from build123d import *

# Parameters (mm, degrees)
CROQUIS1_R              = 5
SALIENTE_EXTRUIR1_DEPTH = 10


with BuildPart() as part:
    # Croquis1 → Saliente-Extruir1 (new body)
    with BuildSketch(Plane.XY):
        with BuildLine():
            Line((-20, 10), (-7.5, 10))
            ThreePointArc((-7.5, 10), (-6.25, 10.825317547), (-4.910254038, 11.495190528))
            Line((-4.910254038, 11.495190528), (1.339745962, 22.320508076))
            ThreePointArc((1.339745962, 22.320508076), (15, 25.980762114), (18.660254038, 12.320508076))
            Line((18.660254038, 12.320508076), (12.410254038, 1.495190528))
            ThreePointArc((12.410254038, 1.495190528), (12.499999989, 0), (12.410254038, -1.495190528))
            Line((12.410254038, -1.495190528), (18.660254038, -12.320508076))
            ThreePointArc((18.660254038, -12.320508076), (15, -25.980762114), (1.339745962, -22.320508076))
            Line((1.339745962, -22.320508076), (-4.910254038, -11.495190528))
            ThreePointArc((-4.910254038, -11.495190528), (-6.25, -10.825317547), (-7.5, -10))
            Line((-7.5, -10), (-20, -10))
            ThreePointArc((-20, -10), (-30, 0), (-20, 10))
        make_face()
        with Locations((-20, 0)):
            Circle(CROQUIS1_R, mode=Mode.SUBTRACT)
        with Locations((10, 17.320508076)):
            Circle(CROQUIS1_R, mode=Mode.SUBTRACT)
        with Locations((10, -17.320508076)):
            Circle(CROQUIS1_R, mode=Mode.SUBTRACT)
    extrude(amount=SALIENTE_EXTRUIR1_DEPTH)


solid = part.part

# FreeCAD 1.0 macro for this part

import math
import FreeCAD as App
import Part
import Sketcher

V = App.Vector
Q = App.Units.Quantity

doc = App.newDocument("Part")
body = doc.addObject("PartDesign::Body", "Body")

# Sketch on XY plane
sketch1 = body.newObject("Sketcher::SketchObject", "Sketch")
sketch1.AttachmentSupport = (doc.getObject("XY_Plane"), [""])
sketch1.MapMode = "FlatFace"
sketch1.addGeometry(Part.LineSegment(V(-7.5, 10, 0), V(-20, 10, 0)), False)
sketch1.addGeometry(Part.ArcOfCircle(Part.Circle(V(-20, 0, 0), V(0, 0, 1), 10), math.radians(90), math.radians(270)), False)
sketch1.addGeometry(Part.LineSegment(V(-20, -10, 0), V(-7.5, -10, 0)), False)
sketch1.addGeometry(Part.ArcOfCircle(Part.Circle(V(0, 0, 0), V(0, 0, 1), 12.5), math.radians(-126.87), math.radians(-113.13)), False)
sketch1.addGeometry(Part.LineSegment(V(-4.9, -11.5, 0), V(1.3, -22.3, 0)), False)
sketch1.addGeometry(Part.ArcOfCircle(Part.Circle(V(10, -17.3, 0), V(0, 0, 1), 10), math.radians(-150), math.radians(30)), False)
sketch1.addGeometry(Part.LineSegment(V(18.7, -12.3, 0), V(12.4, -1.5, 0)), False)
sketch1.addGeometry(Part.ArcOfCircle(Part.Circle(V(0, 0, 0), V(0, 0, 1), 12.5), math.radians(-6.87), math.radians(6.87)), False)
sketch1.addGeometry(Part.LineSegment(V(12.4, 1.5, 0), V(18.7, 12.3, 0)), False)
sketch1.addGeometry(Part.ArcOfCircle(Part.Circle(V(10, 17.3, 0), V(0, 0, 1), 10), math.radians(-30), math.radians(150)), False)
sketch1.addGeometry(Part.LineSegment(V(1.3, 22.3, 0), V(-4.9, 11.5, 0)), False)
sketch1.addGeometry(Part.ArcOfCircle(Part.Circle(V(0, 0, 0), V(0, 0, 1), 12.5), math.radians(113.13), math.radians(126.87)), False)
sketch1.addGeometry(Part.Circle(V(10, -17.3, 0), V(0, 0, 1), 5), False)
sketch1.addGeometry(Part.Circle(V(-20, 0, 0), V(0, 0, 1), 5), False)
sketch1.addGeometry(Part.Circle(V(10, 17.3, 0), V(0, 0, 1), 5), False)
sketch1.addConstraint(Sketcher.Constraint("Tangent", 0, 2, 1, 1))
sketch1.addConstraint(Sketcher.Constraint("Tangent", 1, 2, 2, 1))
sketch1.addConstraint(Sketcher.Constraint("Coincident", 2, 2, 3, 1))
sketch1.addConstraint(Sketcher.Constraint("Coincident", 3, 2, 4, 1))
sketch1.addConstraint(Sketcher.Constraint("Tangent", 4, 2, 5, 1))
sketch1.addConstraint(Sketcher.Constraint("Tangent", 5, 2, 6, 1))
sketch1.addConstraint(Sketcher.Constraint("Coincident", 6, 2, 7, 1))
sketch1.addConstraint(Sketcher.Constraint("Coincident", 7, 2, 8, 1))
sketch1.addConstraint(Sketcher.Constraint("Tangent", 8, 2, 9, 1))
sketch1.addConstraint(Sketcher.Constraint("Tangent", 9, 2, 10, 1))
sketch1.addConstraint(Sketcher.Constraint("Coincident", 10, 2, 11, 1))
sketch1.addConstraint(Sketcher.Constraint("Coincident", 11, 2, 0, 1))
sketch1.addConstraint(Sketcher.Constraint("Horizontal", 0))
sketch1.addConstraint(Sketcher.Constraint("Horizontal", 2))
sketch1.addConstraint(Sketcher.Constraint("Coincident", 3, 3, -1, 1))
sketch1.addConstraint(Sketcher.Constraint("Coincident", 7, 3, -1, 1))
sketch1.addConstraint(Sketcher.Constraint("Coincident", 11, 3, -1, 1))
sketch1.addConstraint(Sketcher.Constraint("Coincident", 12, 3, 5, 3))
sketch1.addConstraint(Sketcher.Constraint("Coincident", 13, 3, 1, 3))
sketch1.addConstraint(Sketcher.Constraint("Coincident", 14, 3, 9, 3))
sketch1.addConstraint(Sketcher.Constraint("Equal", 1, 5))
sketch1.addConstraint(Sketcher.Constraint("Equal", 3, 7))
sketch1.addConstraint(Sketcher.Constraint("Equal", 5, 9))
sketch1.addConstraint(Sketcher.Constraint("Equal", 7, 11))
sketch1.addConstraint(Sketcher.Constraint("Equal", 12, 13))
sketch1.addConstraint(Sketcher.Constraint("Equal", 13, 14))
sketch1.addConstraint(Sketcher.Constraint("Symmetric", 5, 3, 9, 3, -1))
sketch1.addConstraint(Sketcher.Constraint("PointOnObject", 1, 3, -1))
sketch1.addConstraint(Sketcher.Constraint("Parallel", 4, 6))
sketch1.addConstraint(Sketcher.Constraint("Parallel", 8, 10))
sketch1.addConstraint(Sketcher.Constraint("Vertical", 6, 2, 7, 2))
sketch1.addConstraint(Sketcher.Constraint("Equal", 4, 6))
sketch1.addConstraint(Sketcher.Constraint("Diameter", 12, 10.0))
sketch1.addConstraint(Sketcher.Constraint("Radius", 1, 10.0))
sketch1.addConstraint(Sketcher.Constraint("Radius", 3, 12.5))
sketch1.addConstraint(Sketcher.Constraint("Angle", 4, Q("-60 deg")))
sketch1.addConstraint(Sketcher.Constraint("DistanceX", 0, 2, 0, 1, 12.5))
sketch1.addConstraint(Sketcher.Constraint("DistanceX", -1, 1, 5, 3, 10.0))
pad1 = body.newObject("PartDesign::Pad", "Pad")
pad1.Profile = sketch1
pad1.Length = 10

doc.recompute()
